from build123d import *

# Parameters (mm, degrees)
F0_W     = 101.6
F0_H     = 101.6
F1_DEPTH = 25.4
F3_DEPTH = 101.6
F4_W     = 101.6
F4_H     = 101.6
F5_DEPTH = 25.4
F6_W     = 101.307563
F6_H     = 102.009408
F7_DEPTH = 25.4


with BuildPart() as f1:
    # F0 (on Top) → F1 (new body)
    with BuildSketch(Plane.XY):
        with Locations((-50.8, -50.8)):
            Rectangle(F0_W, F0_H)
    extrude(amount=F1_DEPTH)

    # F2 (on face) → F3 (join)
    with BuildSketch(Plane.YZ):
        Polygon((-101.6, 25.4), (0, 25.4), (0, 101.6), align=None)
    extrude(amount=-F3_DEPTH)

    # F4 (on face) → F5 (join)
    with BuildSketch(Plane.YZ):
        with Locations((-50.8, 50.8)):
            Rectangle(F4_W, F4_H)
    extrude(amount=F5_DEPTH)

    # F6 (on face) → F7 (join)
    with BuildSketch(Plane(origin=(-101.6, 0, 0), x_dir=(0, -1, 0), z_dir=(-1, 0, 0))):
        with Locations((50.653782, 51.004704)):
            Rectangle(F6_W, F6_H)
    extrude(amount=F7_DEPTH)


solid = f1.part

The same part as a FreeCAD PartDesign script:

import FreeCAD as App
import Part
import Sketcher
from FreeCAD import Vector
Q = App.Units.Quantity


def add_polygon(sketch, points):
    """Adds a closed chain of lines whose ends are joined by coincident constraints."""
    first, n = sketch.GeometryCount, len(points)
    for a, b in zip(points, points[1:] + points[:1]):
        sketch.addGeometry(Part.LineSegment(App.Vector(*a, 0), App.Vector(*b, 0)), False)
    for i in range(n):
        sketch.addConstraint(Sketcher.Constraint("Coincident", first + i, 2, first + (i + 1) % n, 1))

doc = App.newDocument("Part")
params = doc.addObject("Spreadsheet::Sheet", "Params")
for row, (alias, value) in enumerate([
    ("sketch1_width", "4 in"),
    ("pad1_length", "1 in"),
    ("sketch2_width", "4 in"),
    ("sketch2_height", "3 in"),
    ("pad2_length", "4 in"),
    ("sketch3_width", "4 in"),
    ("pad3_length", "1 in"),
    ("pad4_length", "1 in"),
], start=1):
    params.set(f"A{row}", alias)
    params.set(f"B{row}", "=" + value)
    params.setAlias(f"B{row}", alias)

body = doc.addObject("PartDesign::Body", "Body")

sketch1 = body.newObject("Sketcher::SketchObject", "Sketch")
sketch1.AttachmentSupport = (doc.getObject("XY_Plane"), [""])
sketch1.MapMode = "FlatFace"
add_polygon(sketch1, [(-102, 0), (-102, -102), (0, -102), (0, 0)])
sketch1.addConstraint([
    Sketcher.Constraint("Vertical", 0),
    Sketcher.Constraint("Horizontal", 1),
    Sketcher.Constraint("Vertical", 2),
    Sketcher.Constraint("Horizontal", 3),
    Sketcher.Constraint("Coincident", 2, 2, -1, 1),
    Sketcher.Constraint("Equal", 3, 0),
    Sketcher.Constraint("DistanceX", 1, 1, 1, 2, Q("4 in")),
])
sketch1.setExpression("Constraints[10]", "Params.sketch1_width")
pad1 = body.newObject("PartDesign::Pad", "Pad")
pad1.Profile = sketch1
pad1.setExpression("Length", "Params.pad1_length")

sketch2 = body.newObject("Sketcher::SketchObject", "Sketch001")
sketch2.AttachmentSupport = (doc.getObject("YZ_Plane"), [""])
sketch2.MapMode = "FlatFace"
add_polygon(sketch2, [(-102, 25), (0, 25), (0, 102)])
sketch2.addConstraint([
    Sketcher.Constraint("Horizontal", 0),
    Sketcher.Constraint("Vertical", 1),
    Sketcher.Constraint("PointOnObject", 0, 2, -2),
    Sketcher.Constraint("DistanceX", 0, 1, 0, 2, Q("4 in")),
    Sketcher.Constraint("DistanceY", 1, 1, 1, 2, Q("3 in")),
    Sketcher.Constraint("DistanceY", -1, 1, 0, 2, Q("1 in")),
])
sketch2.setExpression("Constraints[6]", "Params.sketch2_width")
sketch2.setExpression("Constraints[7]", "Params.sketch2_height")
pad2 = body.newObject("PartDesign::Pad", "Pad001")
pad2.Profile = sketch2
pad2.setExpression("Length", "Params.pad2_length")
pad2.Reversed = True

sketch3 = body.newObject("Sketcher::SketchObject", "Sketch002")
sketch3.AttachmentSupport = (doc.getObject("YZ_Plane"), [""])
sketch3.MapMode = "FlatFace"
add_polygon(sketch3, [(-102, 102), (-102, 0), (0, 0), (0, 102)])
sketch3.addConstraint([
    Sketcher.Constraint("Vertical", 0),
    Sketcher.Constraint("Horizontal", 1),
    Sketcher.Constraint("Vertical", 2),
    Sketcher.Constraint("Horizontal", 3),
    Sketcher.Constraint("Coincident", 1, 2, -1, 1),
    Sketcher.Constraint("Equal", 3, 0),
    Sketcher.Constraint("DistanceX", 1, 1, 1, 2, Q("4 in")),
])
sketch3.setExpression("Constraints[10]", "Params.sketch3_width")
pad3 = body.newObject("PartDesign::Pad", "Pad002")
pad3.Profile = sketch3
pad3.setExpression("Length", "Params.pad3_length")

sketch4 = body.newObject("Sketcher::SketchObject", "Sketch003")
sketch4.AttachmentSupport = (doc.getObject("YZ_Plane"), [""])
sketch4.MapMode = "FlatFace"
sketch4.AttachmentOffset = App.Placement(Vector(0, 0, -4 * 25.4), App.Rotation())
add_polygon(sketch4, [(0, 102), (0, 0), (-101, 0), (-101, 102)])
sketch4.addConstraint([
    Sketcher.Constraint("Vertical", 0),
    Sketcher.Constraint("Horizontal", 1),
    Sketcher.Constraint("Vertical", 2),
    Sketcher.Constraint("Horizontal", 3),
    Sketcher.Constraint("Coincident", 0, 2, -1, 1),
    Sketcher.Constraint("DistanceX", 1, 2, 1, 1, 101.307563),
    Sketcher.Constraint("DistanceY", 0, 2, 0, 1, 102.009408),
])
pad4 = body.newObject("PartDesign::Pad", "Pad003")
pad4.Profile = sketch4
pad4.setExpression("Length", "Params.pad4_length")
pad4.Reversed = True

doc.recompute()
